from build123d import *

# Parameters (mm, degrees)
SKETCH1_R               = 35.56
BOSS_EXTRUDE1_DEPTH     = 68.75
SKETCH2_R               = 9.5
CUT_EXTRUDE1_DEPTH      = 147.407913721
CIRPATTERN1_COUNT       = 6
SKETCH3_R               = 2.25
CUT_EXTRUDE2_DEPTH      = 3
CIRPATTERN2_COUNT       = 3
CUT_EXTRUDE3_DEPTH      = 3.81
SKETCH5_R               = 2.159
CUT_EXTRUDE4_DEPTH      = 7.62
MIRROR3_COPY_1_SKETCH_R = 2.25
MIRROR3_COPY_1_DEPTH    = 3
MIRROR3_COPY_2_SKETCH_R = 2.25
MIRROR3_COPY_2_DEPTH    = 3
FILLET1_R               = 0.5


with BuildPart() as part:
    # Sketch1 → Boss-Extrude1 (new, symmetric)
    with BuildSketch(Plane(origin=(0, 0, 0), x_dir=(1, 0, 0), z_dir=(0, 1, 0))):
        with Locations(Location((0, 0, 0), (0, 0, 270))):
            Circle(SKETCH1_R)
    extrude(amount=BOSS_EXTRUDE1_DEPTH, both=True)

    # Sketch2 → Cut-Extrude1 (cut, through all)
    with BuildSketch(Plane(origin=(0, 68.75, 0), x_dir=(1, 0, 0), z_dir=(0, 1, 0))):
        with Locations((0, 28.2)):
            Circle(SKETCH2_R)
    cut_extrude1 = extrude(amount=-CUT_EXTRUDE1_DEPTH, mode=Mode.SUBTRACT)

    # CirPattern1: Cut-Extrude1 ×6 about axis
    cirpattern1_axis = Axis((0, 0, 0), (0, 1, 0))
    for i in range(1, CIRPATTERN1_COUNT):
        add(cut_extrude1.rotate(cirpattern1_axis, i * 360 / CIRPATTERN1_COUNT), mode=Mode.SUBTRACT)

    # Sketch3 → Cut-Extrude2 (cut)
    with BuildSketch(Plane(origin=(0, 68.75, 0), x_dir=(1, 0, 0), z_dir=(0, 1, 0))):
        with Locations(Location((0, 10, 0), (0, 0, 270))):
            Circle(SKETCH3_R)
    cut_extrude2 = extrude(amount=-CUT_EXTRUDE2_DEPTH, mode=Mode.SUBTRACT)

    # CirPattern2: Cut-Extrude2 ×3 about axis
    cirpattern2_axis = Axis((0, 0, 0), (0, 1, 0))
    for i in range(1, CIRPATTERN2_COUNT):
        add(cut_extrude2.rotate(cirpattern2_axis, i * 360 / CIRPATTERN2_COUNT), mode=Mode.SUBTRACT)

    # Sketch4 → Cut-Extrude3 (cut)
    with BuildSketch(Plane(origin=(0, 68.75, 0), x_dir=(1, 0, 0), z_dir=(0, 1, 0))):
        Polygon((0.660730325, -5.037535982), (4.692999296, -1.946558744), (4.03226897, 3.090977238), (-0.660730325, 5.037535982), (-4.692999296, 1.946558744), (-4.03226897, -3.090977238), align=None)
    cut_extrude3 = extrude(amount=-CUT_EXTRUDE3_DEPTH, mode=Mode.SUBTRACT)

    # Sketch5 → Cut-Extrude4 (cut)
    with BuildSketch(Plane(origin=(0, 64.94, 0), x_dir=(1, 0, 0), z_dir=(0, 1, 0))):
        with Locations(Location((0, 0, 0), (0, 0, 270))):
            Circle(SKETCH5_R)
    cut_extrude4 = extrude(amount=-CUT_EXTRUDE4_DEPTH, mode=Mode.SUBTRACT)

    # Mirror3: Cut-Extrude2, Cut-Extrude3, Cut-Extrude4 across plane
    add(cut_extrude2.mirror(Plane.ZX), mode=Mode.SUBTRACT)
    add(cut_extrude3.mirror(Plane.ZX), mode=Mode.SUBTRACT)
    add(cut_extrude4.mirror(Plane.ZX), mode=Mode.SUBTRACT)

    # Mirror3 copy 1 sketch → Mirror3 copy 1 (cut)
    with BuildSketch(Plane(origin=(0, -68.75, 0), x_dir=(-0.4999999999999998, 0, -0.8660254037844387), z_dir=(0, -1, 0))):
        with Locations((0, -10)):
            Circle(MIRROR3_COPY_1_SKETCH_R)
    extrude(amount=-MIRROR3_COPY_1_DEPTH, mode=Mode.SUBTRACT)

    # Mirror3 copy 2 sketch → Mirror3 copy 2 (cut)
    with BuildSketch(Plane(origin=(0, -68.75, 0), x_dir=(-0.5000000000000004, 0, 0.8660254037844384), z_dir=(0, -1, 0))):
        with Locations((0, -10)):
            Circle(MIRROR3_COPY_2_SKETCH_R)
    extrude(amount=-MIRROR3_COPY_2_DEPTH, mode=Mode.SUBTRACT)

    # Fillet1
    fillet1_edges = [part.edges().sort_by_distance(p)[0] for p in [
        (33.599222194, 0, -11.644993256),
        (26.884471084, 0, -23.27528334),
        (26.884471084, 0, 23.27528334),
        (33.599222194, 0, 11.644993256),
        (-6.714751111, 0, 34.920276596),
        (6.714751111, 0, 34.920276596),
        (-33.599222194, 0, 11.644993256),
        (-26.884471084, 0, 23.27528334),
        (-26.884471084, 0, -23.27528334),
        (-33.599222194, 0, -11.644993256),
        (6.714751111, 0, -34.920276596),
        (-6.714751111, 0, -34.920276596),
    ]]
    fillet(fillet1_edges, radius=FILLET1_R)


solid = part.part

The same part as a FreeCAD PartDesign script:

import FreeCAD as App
import Part
import Sketcher

V = App.Vector
Q = App.Units.Quantity


def edges_at(feature, points):
    """Names of the edges that pass closest to the given points."""
    edges = feature.Shape.Edges
    near = lambda p: min(range(len(edges)), key=lambda i: edges[i].distToShape(Part.Vertex(*p))[0])
    return sorted({f"Edge{near(p) + 1}" for p in points})


def add_polygon(sketch, points):
    """Adds a closed chain of lines whose ends are joined by coincident constraints."""
    first, n = sketch.GeometryCount, len(points)
    for a, b in zip(points, points[1:] + points[:1]):
        sketch.addGeometry(Part.LineSegment(App.Vector(*a, 0), App.Vector(*b, 0)), False)
    for i in range(n):
        sketch.addConstraint(Sketcher.Constraint("Coincident", first + i, 2, first + (i + 1) % n, 1))

doc = App.newDocument("Part")
body = doc.addObject("PartDesign::Body", "Body")

# Sketch on XZ plane
sketch1 = body.newObject("Sketcher::SketchObject", "Sketch")
sketch1.AttachmentSupport = (doc.getObject("XZ_Plane"), [""])
sketch1.MapMode = "FlatFace"
sketch1.addGeometry(Part.Circle(V(0, 0, 0), V(0, 0, 1), 35.56), False)
sketch1.addConstraint(Sketcher.Constraint("Coincident", 0, 3, -1, 1))
sketch1.addConstraint(Sketcher.Constraint("Diameter", 0, Q("71.12 mm")))
pad1 = body.newObject("PartDesign::Pad", "Pad")
pad1.Profile = sketch1
pad1.Length = 137.5
pad1.Midplane = True

# Sketch on XZ plane
sketch2 = body.newObject("Sketcher::SketchObject", "Sketch001")
sketch2.AttachmentSupport = (doc.getObject("XZ_Plane"), [""])
sketch2.MapMode = "FlatFace"
sketch2.AttachmentOffset = App.Placement(V(0, 0, -68.75), App.Rotation())
sketch2.addGeometry(Part.Circle(V(0, -28.2, 0), V(0, 0, 1), 9.5), False)
sketch2.addConstraint(Sketcher.Constraint("PointOnObject", 0, 3, -2))
sketch2.addConstraint(Sketcher.Constraint("Diameter", 0, Q("19 mm")))
sketch2.addConstraint(Sketcher.Constraint("DistanceY", 0, 3, -1, 1, Q("28.2 mm")))
pocket1 = body.newObject("PartDesign::Pocket", "Pocket")
pocket1.Profile = sketch2
pocket1.Type = "ThroughAll"
pocket1.Reversed = True
doc.recompute()

polarpattern = body.newObject("PartDesign::PolarPattern", "PolarPattern")
polarpattern.Originals = [pocket1]
polarpattern.Axis = (doc.getObject("Y_Axis"), [""])
polarpattern.Angle = 360
polarpattern.Occurrences = 6
body.Tip = polarpattern

# Sketch on XZ plane
sketch3 = body.newObject("Sketcher::SketchObject", "Sketch002")
sketch3.AttachmentSupport = (doc.getObject("XZ_Plane"), [""])
sketch3.MapMode = "FlatFace"
sketch3.AttachmentOffset = App.Placement(V(0, 0, -68.75), App.Rotation())
sketch3.addGeometry(Part.Circle(V(0, -10, 0), V(0, 0, 1), 2.25), False)
sketch3.addConstraint(Sketcher.Constraint("PointOnObject", 0, 3, -2))
sketch3.addConstraint(Sketcher.Constraint("Diameter", 0, Q("4.5 mm")))
sketch3.addConstraint(Sketcher.Constraint("DistanceY", 0, 3, -1, 1, Q("10 mm")))
pocket2 = body.newObject("PartDesign::Pocket", "Pocket001")
pocket2.Profile = sketch3
pocket2.Length = 3
pocket2.Reversed = True
doc.recompute()

polarpattern2 = body.newObject("PartDesign::PolarPattern", "PolarPattern001")
polarpattern2.Originals = [pocket2]
polarpattern2.Axis = (doc.getObject("Y_Axis"), [""])
polarpattern2.Angle = 360
polarpattern2.Occurrences = 3
body.Tip = polarpattern2

# Sketch on XZ plane
sketch4 = body.newObject("Sketcher::SketchObject", "Sketch003")
sketch4.AttachmentSupport = (doc.getObject("XZ_Plane"), [""])
sketch4.MapMode = "FlatFace"
sketch4.AttachmentOffset = App.Placement(V(0, 0, -68.75), App.Rotation())
add_polygon(sketch4, [(0.66073, 5.037536), (4.692999, 1.946559), (4.032269, -3.090977), (-0.66073, -5.037536), (-4.692999, -1.946559), (-4.032269, 3.090977)])  # lines 0-5
sketch4.addConstraint(Sketcher.Constraint("Symmetric", 0, 2, 3, 2, -1, 1))
sketch4.addConstraint(Sketcher.Constraint("Symmetric", 1, 2, 4, 2, -1, 1))
sketch4.addConstraint(Sketcher.Constraint("Symmetric", 2, 2, 5, 2, -1, 1))
sketch4.addConstraint(Sketcher.Constraint("Equal", 0, 1))
sketch4.addConstraint(Sketcher.Constraint("Equal", 1, 2))
sketch4.addConstraint(Sketcher.Constraint("DistanceX", -1, 1, 0, 2, Q("4.692999 mm")))
sketch4.addConstraint(Sketcher.Constraint("DistanceX", 2, 2, 1, 2, Q("4.692999 mm")))
sketch4.addConstraint(Sketcher.Constraint("DistanceY", -1, 1, 0, 2, Q("1.946559 mm")))
sketch4.addConstraint(Sketcher.Constraint("DistanceX", -1, 1, 1, 2, Q("4.032269 mm")))
pocket3 = body.newObject("PartDesign::Pocket", "Pocket002")
pocket3.Profile = sketch4
pocket3.Length = 3.81
pocket3.Reversed = True

# Sketch on XZ plane
sketch5 = body.newObject("Sketcher::SketchObject", "Sketch004")
sketch5.AttachmentSupport = (doc.getObject("XZ_Plane"), [""])
sketch5.MapMode = "FlatFace"
sketch5.AttachmentOffset = App.Placement(V(0, 0, -64.94), App.Rotation())
sketch5.addGeometry(Part.Circle(V(0, 0, 0), V(0, 0, 1), 2.159), False)
sketch5.addConstraint(Sketcher.Constraint("Coincident", 0, 3, -1, 1))
sketch5.addConstraint(Sketcher.Constraint("Diameter", 0, Q("4.318 mm")))
pocket4 = body.newObject("PartDesign::Pocket", "Pocket003")
pocket4.Profile = sketch5
pocket4.Length = 7.62
pocket4.Reversed = True
doc.recompute()

mirrored = body.newObject("PartDesign::Mirrored", "Mirrored")
mirrored.Originals = [pocket2, pocket3, pocket4]
mirrored.MirrorPlane = (doc.getObject("XZ_Plane"), [""])
body.Tip = mirrored

# Sketch on XZ plane
sketch6 = body.newObject("Sketcher::SketchObject", "Sketch005")
sketch6.AttachmentSupport = (doc.getObject("XZ_Plane"), [""])
sketch6.MapMode = "FlatFace"
sketch6.AttachmentOffset = App.Placement(V(0, 0, 68.75), App.Rotation())
sketch6.addGeometry(Part.Circle(V(-8.660254, 5, 0), V(0, 0, 1), 2.25), False)
sketch6.addConstraint(Sketcher.Constraint("Diameter", 0, Q("4.5 mm")))
sketch6.addConstraint(Sketcher.Constraint("DistanceY", -1, 1, 0, 3, Q("5 mm")))
sketch6.addConstraint(Sketcher.Constraint("DistanceX", 0, 3, -1, 1, Q("8.660254 mm")))
pocket5 = body.newObject("PartDesign::Pocket", "Pocket004")
pocket5.Profile = sketch6
pocket5.Length = 3

# Sketch on XZ plane
sketch7 = body.newObject("Sketcher::SketchObject", "Sketch006")
sketch7.AttachmentSupport = (doc.getObject("XZ_Plane"), [""])
sketch7.MapMode = "FlatFace"
sketch7.AttachmentOffset = App.Placement(V(0, 0, 68.75), App.Rotation())
sketch7.addGeometry(Part.Circle(V(8.660254, 5, 0), V(0, 0, 1), 2.25), False)
sketch7.addConstraint(Sketcher.Constraint("Diameter", 0, Q("4.5 mm")))
sketch7.addConstraint(Sketcher.Constraint("DistanceY", -1, 1, 0, 3, Q("5 mm")))
sketch7.addConstraint(Sketcher.Constraint("DistanceX", -1, 1, 0, 3, Q("8.660254 mm")))
pocket6 = body.newObject("PartDesign::Pocket", "Pocket005")
pocket6.Profile = sketch7
pocket6.Length = 3
doc.recompute()

fillet = body.newObject("PartDesign::Fillet", "Fillet")
fillet.Base = (pocket6, edges_at(pocket6, [
    (33.599, 0, -11.645),
    (26.884, 0, -23.275),
    (26.884, 0, 23.275),
    (33.599, 0, 11.645),
    (-6.715, 0, 34.92),
    (6.715, 0, 34.92),
    (-33.599, 0, 11.645),
    (-26.884, 0, 23.275),
    (-26.884, 0, -23.275),
    (-33.599, 0, -11.645),
    (6.715, 0, -34.92),
    (-6.715, 0, -34.92),
]))
fillet.Radius = 0.5

doc.recompute()
